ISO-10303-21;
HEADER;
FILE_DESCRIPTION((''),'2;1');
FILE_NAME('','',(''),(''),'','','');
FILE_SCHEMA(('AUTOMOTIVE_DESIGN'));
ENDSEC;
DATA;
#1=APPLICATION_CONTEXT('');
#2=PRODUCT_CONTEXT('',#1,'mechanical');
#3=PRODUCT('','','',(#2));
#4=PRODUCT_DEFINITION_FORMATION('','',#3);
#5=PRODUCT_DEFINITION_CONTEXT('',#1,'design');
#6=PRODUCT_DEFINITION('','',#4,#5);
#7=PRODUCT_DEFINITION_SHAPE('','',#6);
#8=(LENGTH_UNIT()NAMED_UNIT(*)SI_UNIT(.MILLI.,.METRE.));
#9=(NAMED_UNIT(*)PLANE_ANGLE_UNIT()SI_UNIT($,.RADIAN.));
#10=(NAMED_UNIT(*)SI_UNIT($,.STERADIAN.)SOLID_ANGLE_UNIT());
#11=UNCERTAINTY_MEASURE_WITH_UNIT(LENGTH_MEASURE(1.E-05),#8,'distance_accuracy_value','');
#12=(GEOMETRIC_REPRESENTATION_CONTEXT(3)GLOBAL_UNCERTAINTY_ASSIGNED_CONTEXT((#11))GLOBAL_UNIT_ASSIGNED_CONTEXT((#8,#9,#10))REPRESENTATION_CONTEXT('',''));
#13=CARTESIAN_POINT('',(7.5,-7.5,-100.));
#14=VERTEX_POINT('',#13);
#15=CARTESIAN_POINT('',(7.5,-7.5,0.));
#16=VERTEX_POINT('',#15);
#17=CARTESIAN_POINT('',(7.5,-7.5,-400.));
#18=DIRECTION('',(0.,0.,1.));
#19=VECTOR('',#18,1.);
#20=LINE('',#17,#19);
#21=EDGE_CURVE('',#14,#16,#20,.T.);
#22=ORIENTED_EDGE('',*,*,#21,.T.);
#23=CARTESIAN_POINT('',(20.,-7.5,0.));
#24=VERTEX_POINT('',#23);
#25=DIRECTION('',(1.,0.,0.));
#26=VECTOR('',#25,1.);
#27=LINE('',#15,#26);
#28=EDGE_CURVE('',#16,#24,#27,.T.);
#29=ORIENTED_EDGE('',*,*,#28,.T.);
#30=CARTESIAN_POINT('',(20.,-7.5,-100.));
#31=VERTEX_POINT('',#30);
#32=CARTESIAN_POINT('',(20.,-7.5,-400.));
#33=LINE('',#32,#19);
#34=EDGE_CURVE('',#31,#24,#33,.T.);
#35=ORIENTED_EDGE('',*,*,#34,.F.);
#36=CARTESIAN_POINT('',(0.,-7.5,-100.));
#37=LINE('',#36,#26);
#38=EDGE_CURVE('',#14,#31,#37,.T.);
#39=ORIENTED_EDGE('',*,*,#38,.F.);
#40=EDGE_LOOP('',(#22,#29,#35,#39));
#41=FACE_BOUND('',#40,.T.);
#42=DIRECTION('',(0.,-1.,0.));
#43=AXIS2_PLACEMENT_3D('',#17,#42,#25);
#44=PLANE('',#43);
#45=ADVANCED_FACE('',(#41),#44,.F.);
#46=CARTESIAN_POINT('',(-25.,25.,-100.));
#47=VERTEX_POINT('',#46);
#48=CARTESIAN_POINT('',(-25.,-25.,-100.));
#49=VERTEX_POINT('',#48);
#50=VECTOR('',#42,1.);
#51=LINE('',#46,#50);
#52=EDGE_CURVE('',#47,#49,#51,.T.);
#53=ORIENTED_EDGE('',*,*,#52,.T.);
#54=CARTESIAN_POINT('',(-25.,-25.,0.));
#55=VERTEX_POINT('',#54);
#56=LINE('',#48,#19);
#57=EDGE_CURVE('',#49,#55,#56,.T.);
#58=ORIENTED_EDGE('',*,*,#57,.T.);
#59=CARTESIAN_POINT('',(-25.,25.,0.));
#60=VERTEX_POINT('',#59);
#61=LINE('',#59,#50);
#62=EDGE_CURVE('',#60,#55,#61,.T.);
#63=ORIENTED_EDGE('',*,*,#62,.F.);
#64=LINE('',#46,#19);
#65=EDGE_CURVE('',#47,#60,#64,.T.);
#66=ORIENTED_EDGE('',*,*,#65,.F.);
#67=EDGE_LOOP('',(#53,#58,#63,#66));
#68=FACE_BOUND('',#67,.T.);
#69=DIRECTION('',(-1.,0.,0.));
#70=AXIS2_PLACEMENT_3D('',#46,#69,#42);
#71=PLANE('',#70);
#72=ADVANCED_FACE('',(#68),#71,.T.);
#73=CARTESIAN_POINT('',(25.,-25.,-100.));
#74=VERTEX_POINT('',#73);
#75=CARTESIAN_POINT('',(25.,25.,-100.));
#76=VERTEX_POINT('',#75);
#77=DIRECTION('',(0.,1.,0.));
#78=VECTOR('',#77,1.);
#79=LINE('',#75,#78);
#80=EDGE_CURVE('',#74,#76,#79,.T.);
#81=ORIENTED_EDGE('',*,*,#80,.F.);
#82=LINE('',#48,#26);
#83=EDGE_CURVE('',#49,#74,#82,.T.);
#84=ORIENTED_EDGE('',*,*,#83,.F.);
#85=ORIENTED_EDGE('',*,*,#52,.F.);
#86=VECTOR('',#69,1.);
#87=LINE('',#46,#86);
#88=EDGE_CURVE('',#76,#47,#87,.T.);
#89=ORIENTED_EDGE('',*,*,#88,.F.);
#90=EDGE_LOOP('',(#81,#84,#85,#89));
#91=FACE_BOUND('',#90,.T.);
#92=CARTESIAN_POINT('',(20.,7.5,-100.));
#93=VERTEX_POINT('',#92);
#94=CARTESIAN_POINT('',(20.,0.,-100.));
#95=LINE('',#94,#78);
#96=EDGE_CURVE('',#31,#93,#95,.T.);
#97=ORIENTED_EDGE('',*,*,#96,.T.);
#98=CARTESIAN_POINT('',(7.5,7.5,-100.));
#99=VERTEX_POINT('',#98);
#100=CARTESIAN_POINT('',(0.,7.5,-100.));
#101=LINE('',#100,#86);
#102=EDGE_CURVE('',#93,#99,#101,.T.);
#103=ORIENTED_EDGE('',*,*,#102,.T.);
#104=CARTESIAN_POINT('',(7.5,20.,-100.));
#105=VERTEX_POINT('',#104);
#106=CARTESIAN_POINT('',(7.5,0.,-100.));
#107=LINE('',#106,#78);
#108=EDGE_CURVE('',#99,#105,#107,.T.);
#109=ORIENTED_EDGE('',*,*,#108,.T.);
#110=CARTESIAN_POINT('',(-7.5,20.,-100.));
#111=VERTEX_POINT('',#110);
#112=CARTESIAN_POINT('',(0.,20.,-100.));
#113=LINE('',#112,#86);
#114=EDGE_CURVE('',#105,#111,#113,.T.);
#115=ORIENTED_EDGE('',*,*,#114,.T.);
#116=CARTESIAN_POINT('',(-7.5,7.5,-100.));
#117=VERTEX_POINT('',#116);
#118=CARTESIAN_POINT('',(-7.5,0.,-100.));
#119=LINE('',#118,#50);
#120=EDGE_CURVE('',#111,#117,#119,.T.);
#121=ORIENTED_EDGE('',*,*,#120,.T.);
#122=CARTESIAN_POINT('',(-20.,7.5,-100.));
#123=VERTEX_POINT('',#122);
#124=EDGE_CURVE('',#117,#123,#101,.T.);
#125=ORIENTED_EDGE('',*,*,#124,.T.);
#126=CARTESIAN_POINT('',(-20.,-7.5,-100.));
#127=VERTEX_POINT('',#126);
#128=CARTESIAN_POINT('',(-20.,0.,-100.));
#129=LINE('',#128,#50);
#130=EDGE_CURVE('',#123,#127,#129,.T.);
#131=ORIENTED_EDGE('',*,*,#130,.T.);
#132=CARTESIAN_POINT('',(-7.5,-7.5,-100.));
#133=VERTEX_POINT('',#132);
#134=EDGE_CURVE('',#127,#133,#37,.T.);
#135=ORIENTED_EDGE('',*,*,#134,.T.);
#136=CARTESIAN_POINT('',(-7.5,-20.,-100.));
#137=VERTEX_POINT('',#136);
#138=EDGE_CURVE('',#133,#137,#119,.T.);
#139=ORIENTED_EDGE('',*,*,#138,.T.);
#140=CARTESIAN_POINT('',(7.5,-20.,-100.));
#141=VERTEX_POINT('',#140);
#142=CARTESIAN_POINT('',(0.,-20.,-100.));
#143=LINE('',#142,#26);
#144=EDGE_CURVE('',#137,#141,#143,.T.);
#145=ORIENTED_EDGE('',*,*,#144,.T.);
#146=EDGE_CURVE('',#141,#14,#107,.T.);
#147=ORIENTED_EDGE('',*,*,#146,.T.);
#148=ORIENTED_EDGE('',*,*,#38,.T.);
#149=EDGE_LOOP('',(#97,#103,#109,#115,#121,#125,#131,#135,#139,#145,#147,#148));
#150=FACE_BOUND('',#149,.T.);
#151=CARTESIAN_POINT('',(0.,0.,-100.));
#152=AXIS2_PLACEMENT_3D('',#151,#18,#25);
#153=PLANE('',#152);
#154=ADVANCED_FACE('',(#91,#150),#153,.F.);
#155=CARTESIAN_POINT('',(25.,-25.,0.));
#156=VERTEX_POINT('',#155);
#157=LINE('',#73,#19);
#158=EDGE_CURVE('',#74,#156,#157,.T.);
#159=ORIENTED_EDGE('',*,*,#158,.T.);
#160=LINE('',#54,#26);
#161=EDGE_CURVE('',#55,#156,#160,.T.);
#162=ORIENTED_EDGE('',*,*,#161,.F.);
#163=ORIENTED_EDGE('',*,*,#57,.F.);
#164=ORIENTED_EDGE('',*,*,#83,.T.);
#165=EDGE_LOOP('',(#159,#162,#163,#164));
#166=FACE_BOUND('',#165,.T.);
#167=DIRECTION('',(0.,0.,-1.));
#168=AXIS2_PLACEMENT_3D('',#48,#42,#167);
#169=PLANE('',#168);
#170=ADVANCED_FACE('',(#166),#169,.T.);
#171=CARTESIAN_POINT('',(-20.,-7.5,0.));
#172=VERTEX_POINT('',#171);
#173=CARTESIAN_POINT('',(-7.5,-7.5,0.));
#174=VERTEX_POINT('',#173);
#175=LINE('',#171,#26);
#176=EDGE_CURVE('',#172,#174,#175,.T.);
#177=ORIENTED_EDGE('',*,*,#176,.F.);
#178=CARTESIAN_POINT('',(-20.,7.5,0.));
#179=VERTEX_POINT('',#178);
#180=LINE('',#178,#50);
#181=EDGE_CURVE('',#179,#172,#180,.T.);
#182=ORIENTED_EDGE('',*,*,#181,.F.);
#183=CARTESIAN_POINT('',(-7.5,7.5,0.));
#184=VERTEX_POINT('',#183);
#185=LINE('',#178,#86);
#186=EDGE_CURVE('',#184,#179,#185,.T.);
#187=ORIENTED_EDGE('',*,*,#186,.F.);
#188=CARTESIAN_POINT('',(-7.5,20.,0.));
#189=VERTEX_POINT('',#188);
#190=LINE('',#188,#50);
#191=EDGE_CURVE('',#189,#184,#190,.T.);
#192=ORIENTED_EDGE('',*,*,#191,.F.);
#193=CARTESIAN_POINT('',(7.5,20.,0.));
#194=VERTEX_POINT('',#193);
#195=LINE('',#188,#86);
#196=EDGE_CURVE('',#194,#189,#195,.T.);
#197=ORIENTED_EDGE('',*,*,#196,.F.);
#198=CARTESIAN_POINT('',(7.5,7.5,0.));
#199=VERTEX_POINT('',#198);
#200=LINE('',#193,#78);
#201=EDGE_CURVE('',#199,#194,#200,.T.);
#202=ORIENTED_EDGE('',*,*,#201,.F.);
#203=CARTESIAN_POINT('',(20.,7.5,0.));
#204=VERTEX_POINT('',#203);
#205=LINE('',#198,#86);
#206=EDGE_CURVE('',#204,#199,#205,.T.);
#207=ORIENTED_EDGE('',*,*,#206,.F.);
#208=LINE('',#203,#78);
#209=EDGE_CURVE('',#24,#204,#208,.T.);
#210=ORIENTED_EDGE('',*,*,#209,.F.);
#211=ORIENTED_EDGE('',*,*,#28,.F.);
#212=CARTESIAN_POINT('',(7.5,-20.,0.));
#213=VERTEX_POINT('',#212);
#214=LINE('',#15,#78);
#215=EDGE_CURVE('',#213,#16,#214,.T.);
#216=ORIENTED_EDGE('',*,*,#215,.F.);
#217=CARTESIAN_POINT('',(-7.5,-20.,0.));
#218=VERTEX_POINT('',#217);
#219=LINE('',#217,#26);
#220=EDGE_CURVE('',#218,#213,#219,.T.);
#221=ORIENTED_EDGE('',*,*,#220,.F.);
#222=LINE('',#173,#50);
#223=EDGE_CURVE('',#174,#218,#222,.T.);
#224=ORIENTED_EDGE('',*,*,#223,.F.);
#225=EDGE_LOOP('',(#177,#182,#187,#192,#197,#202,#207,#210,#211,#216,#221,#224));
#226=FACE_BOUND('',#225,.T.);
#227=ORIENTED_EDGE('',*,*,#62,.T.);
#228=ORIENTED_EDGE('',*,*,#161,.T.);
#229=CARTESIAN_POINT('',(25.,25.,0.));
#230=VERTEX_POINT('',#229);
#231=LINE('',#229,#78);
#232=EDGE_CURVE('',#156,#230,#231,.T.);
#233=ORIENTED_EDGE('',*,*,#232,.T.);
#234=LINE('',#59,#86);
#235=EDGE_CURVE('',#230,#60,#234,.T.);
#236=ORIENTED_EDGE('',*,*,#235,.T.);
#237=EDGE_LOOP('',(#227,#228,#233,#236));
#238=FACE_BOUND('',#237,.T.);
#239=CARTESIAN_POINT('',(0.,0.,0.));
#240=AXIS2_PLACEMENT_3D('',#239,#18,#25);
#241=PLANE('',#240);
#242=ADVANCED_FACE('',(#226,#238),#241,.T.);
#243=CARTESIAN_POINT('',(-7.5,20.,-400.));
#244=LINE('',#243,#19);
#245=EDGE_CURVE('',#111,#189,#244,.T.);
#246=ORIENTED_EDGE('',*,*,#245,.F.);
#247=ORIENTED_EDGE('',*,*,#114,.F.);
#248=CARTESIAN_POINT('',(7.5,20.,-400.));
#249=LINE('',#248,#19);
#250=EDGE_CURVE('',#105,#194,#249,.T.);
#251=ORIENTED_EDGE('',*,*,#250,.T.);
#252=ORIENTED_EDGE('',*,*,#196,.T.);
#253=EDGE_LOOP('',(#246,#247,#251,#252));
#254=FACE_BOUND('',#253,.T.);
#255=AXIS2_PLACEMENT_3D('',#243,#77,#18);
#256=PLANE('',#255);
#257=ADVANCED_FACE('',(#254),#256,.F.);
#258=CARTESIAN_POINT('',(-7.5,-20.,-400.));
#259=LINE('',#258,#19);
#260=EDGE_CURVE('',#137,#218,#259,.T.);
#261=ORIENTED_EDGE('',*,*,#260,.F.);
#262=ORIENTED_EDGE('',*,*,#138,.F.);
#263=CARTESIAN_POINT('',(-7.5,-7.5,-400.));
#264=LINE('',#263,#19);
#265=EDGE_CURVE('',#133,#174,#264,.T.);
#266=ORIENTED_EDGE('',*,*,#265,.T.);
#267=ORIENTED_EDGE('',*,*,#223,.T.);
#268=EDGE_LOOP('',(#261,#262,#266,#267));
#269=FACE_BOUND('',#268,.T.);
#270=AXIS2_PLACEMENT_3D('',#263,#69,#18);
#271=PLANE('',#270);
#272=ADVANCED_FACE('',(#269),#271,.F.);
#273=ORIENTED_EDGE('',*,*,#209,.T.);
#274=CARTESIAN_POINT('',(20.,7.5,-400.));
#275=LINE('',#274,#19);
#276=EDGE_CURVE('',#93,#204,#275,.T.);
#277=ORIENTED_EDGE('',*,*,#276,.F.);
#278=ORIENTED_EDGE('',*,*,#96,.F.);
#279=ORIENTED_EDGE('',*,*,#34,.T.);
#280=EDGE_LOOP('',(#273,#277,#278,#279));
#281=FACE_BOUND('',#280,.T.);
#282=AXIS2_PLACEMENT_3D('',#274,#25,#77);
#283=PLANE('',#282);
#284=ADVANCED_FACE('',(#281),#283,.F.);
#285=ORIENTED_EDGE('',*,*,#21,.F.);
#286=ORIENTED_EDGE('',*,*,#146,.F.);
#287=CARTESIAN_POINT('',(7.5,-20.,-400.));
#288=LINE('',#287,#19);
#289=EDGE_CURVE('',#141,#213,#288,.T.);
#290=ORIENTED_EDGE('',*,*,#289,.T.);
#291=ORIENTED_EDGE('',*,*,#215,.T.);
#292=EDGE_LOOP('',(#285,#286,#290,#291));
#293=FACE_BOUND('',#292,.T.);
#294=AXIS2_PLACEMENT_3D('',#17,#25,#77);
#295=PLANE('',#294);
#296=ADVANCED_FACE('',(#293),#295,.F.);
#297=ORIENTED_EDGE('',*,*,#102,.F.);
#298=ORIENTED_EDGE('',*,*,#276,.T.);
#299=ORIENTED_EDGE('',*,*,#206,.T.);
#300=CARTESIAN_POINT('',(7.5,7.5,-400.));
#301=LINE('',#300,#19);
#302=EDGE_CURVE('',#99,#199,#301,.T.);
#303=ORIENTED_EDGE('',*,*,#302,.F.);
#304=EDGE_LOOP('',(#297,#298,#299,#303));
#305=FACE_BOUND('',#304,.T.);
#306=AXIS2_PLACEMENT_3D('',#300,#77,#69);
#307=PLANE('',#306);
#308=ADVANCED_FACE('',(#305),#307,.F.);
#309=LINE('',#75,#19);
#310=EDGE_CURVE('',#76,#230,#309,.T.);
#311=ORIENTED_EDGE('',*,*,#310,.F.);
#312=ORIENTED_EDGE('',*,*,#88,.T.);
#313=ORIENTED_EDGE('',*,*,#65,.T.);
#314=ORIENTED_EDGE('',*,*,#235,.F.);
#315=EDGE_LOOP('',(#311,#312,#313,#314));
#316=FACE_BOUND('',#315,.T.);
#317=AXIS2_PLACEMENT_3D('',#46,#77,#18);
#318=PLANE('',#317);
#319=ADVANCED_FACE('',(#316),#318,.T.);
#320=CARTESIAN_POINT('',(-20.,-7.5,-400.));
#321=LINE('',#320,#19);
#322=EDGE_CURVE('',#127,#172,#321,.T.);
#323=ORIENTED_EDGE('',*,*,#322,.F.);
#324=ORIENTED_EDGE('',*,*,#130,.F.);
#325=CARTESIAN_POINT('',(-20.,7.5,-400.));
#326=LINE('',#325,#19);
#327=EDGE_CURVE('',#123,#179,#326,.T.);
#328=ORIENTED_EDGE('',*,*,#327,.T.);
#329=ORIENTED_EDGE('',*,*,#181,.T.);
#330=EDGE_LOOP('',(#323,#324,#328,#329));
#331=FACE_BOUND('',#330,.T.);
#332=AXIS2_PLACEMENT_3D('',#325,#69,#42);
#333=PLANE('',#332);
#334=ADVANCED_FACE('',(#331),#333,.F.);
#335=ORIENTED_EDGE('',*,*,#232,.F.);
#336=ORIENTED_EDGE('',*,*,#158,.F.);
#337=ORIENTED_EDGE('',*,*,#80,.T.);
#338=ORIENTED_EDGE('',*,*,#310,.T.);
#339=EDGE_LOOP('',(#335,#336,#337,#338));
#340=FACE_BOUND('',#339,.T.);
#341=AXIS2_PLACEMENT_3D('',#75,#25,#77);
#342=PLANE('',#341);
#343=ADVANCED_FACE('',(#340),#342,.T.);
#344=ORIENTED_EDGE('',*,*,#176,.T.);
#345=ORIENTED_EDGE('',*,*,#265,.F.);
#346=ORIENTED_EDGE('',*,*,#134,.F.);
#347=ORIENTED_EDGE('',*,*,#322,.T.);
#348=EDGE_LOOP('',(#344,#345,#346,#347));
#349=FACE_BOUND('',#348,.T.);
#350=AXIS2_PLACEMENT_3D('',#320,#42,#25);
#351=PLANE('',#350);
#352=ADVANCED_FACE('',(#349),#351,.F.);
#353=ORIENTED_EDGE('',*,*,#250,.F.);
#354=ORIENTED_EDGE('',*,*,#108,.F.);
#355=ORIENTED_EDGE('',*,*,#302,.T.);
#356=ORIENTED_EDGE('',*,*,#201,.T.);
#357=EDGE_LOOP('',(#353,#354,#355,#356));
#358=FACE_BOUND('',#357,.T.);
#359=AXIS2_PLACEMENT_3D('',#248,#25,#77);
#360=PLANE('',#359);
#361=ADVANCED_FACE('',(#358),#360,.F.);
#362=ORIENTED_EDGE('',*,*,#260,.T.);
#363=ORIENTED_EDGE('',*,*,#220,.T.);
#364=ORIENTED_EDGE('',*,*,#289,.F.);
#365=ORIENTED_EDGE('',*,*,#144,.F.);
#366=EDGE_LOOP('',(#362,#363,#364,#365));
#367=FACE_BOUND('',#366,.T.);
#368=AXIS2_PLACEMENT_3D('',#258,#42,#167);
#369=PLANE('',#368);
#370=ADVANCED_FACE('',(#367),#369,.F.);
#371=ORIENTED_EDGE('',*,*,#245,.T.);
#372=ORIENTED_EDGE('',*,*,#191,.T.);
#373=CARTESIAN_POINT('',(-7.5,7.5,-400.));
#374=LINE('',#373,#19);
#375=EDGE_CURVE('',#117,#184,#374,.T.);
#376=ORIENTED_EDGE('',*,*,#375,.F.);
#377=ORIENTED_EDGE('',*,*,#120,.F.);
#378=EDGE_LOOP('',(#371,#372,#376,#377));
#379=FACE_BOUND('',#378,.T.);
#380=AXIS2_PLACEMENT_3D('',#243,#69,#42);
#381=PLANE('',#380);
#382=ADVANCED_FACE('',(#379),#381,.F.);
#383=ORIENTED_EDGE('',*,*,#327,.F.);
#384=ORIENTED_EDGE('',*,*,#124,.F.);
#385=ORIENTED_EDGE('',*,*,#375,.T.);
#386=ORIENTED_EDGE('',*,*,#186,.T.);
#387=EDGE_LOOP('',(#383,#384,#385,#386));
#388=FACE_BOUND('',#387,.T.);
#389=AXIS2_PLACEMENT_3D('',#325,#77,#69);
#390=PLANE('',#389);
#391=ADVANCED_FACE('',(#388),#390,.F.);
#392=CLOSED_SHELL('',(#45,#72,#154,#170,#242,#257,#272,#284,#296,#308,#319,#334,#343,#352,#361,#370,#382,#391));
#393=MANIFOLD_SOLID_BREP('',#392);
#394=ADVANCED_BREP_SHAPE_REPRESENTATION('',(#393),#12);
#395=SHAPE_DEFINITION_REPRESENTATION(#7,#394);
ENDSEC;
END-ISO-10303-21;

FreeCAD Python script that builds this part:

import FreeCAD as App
import Part
import Sketcher
from FreeCAD import Vector


def add_polygon(sketch, points):
    """Adds a closed chain of lines whose ends are joined by coincident constraints."""
    first, n = sketch.GeometryCount, len(points)
    for a, b in zip(points, points[1:] + points[:1]):
        sketch.addGeometry(Part.LineSegment(App.Vector(*a, 0), App.Vector(*b, 0)), False)
    for i in range(n):
        sketch.addConstraint(Sketcher.Constraint("Coincident", first + i, 2, first + (i + 1) % n, 1))

doc = App.newDocument("Part")
body = doc.addObject("PartDesign::Body", "Body")

# Sketch on XY plane
sketch1 = body.newObject("Sketcher::SketchObject", "Sketch")
sketch1.AttachmentSupport = (doc.getObject("XY_Plane"), [""])
sketch1.MapMode = "FlatFace"
add_polygon(sketch1, [(-25, 25), (-25, -25), (25, -25), (25, 25)])  # lines 0-3
sketch1.addConstraint([
    Sketcher.Constraint("Vertical", 0),
    Sketcher.Constraint("Horizontal", 1),
    Sketcher.Constraint("Vertical", 2),
    Sketcher.Constraint("Horizontal", 3),
    Sketcher.Constraint("Symmetric", 0, 2, 2, 2, -1, 1),
    Sketcher.Constraint("Equal", 3, 0),
    Sketcher.Constraint("DistanceX", 1, 1, 1, 2, 50.0),
])
pad1 = body.newObject("PartDesign::Pad", "Pad")
pad1.Profile = sketch1
pad1.Length = 100
pad1.Reversed = True

# Sketch on XY plane
sketch2 = body.newObject("Sketcher::SketchObject", "Sketch001")
sketch2.AttachmentSupport = (doc.getObject("XY_Plane"), [""])
sketch2.MapMode = "FlatFace"
add_polygon(sketch2, [(20, 8), (8, 8), (8, 20), (-8, 20), (-8, 8), (-20, 8), (-20, -8), (-8, -8), (-8, -20), (8, -20), (8, -8), (20, -8)])  # lines 0-11
sketch2.addConstraint([
    Sketcher.Constraint("Horizontal", 0),
    Sketcher.Constraint("Vertical", 1),
    Sketcher.Constraint("Horizontal", 2),
    Sketcher.Constraint("Vertical", 3),
    Sketcher.Constraint("Horizontal", 4),
    Sketcher.Constraint("Vertical", 5),
    Sketcher.Constraint("Horizontal", 6),
    Sketcher.Constraint("Vertical", 7),
    Sketcher.Constraint("Horizontal", 8),
    Sketcher.Constraint("Vertical", 9),
    Sketcher.Constraint("Horizontal", 10),
    Sketcher.Constraint("Vertical", 11),
    Sketcher.Constraint("Symmetric", 0, 2, 6, 2, -1, 1),
    Sketcher.Constraint("Symmetric", 2, 2, 8, 2, -1, 1),
    Sketcher.Constraint("Symmetric", 4, 2, 10, 2, -1, 1),
    Sketcher.Constraint("Symmetric", 0, 2, 3, 2, -2),
    Sketcher.Constraint("Equal", 10, 1),
    Sketcher.Constraint("Equal", 8, 5),
    Sketcher.Constraint("DistanceX", 2, 2, 2, 1, 15.0),
    Sketcher.Constraint("DistanceX", 0, 2, 0, 1, 12.5),
])
pocket1 = body.newObject("PartDesign::Pocket", "Pocket")
pocket1.Profile = sketch2
pocket1.Length = 400

doc.recompute()
